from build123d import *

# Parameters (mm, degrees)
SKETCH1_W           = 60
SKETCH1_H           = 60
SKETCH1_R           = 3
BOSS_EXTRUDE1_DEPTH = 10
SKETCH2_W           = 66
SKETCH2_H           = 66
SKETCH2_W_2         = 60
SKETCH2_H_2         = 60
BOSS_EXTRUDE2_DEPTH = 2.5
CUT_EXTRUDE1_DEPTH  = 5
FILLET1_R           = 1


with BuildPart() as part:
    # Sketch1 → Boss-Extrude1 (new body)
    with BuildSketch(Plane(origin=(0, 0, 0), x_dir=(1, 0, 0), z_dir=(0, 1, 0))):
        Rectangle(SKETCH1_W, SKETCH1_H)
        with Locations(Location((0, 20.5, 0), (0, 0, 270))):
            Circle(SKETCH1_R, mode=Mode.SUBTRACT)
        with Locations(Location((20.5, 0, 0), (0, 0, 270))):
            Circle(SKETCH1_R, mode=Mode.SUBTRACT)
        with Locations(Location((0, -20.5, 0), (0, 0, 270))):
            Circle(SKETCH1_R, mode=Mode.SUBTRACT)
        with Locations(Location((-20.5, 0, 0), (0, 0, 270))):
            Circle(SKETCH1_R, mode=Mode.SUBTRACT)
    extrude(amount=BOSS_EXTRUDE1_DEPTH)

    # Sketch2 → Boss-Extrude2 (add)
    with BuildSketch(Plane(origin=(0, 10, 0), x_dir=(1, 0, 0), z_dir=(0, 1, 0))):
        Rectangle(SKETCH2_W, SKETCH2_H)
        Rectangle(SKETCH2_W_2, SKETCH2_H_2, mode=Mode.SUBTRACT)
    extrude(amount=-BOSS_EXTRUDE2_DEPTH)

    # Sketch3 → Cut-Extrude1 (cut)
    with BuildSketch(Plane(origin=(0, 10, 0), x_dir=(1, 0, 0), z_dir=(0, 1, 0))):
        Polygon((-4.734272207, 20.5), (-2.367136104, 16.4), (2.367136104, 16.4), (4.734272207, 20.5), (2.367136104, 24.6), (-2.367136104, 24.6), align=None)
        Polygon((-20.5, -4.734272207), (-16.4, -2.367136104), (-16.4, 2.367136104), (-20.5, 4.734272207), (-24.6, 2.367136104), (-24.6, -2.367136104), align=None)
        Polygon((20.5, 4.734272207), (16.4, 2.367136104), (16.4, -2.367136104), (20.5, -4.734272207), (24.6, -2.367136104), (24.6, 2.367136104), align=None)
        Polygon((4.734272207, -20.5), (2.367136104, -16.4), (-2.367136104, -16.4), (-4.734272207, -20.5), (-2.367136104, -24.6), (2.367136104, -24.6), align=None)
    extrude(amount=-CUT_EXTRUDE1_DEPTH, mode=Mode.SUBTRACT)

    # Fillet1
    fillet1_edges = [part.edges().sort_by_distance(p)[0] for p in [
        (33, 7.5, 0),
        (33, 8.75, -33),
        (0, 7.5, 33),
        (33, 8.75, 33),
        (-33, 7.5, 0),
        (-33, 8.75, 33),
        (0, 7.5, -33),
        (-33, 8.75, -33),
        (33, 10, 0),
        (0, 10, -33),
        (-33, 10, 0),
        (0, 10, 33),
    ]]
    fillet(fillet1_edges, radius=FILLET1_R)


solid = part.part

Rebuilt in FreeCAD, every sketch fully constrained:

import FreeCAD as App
import Part
import Sketcher
Q = App.Units.Quantity


def edges_at(feature, points):
    """Names of the edges that pass closest to the given points."""
    edges = feature.Shape.Edges
    near = lambda p: min(range(len(edges)), key=lambda i: edges[i].distToShape(Part.Vertex(*p))[0])
    return sorted({f"Edge{near(p) + 1}" for p in points})


def add_polygon(sketch, points):
    """Adds a closed chain of lines whose ends are joined by coincident constraints."""
    first, n = sketch.GeometryCount, len(points)
    for a, b in zip(points, points[1:] + points[:1]):
        sketch.addGeometry(Part.LineSegment(App.Vector(*a, 0), App.Vector(*b, 0)), False)
    for i in range(n):
        sketch.addConstraint(Sketcher.Constraint("Coincident", first + i, 2, first + (i + 1) % n, 1))

doc = App.newDocument("Part")
params = doc.addObject("Spreadsheet::Sheet", "Params")
for row, (alias, value) in enumerate([
    ("sketch1_diameter", "6 mm"),
    ("sketch1_width", "60 mm"),
    ("pad1_length", "10 mm"),
    ("sketch2_width", "66 mm"),
    ("sketch2_width2", "60 mm"),
    ("pad2_length", "2.5 mm"),
    ("pocket1_length", "5 mm"),
    ("fillet_radius", "1 mm"),
], start=1):
    params.set(f"A{row}", alias)
    params.set(f"B{row}", "=" + value)
    params.setAlias(f"B{row}", alias)

body = doc.addObject("PartDesign::Body", "Body")

sketch1 = body.newObject("Sketcher::SketchObject", "Sketch")
sketch1.AttachmentSupport = (doc.getObject("XZ_Plane"), [""])
sketch1.MapMode = "FlatFace"
add_polygon(sketch1, [(-30, -30), (-30, 30), (30, 30), (30, -30)])
sketch1.addGeometry(Part.Circle(App.Vector(0, 20.5, 0), App.Vector(0, 0, 1), 3), False)
sketch1.addGeometry(Part.Circle(App.Vector(-20.5, 0, 0), App.Vector(0, 0, 1), 3), False)
sketch1.addGeometry(Part.Circle(App.Vector(20.5, 0, 0), App.Vector(0, 0, 1), 3), False)
sketch1.addGeometry(Part.Circle(App.Vector(0, -20.5, 0), App.Vector(0, 0, 1), 3), False)
sketch1.addConstraint([
    Sketcher.Constraint("Vertical", 0),
    Sketcher.Constraint("Horizontal", 1),
    Sketcher.Constraint("Vertical", 2),
    Sketcher.Constraint("Horizontal", 3),
    Sketcher.Constraint("Equal", 4, 5),
    Sketcher.Constraint("Equal", 5, 6),
    Sketcher.Constraint("Equal", 6, 7),
    Sketcher.Constraint("Symmetric", 5, 3, 6, 3, -1, 1),
    Sketcher.Constraint("Symmetric", 4, 3, 7, 3, -1, 1),
    Sketcher.Constraint("Symmetric", 0, 2, 2, 2, -1, 1),
    Sketcher.Constraint("PointOnObject", 4, 3, -2),
    Sketcher.Constraint("PointOnObject", 5, 3, -1),
    Sketcher.Constraint("Equal", 3, 0),
    Sketcher.Constraint("Diameter", 4, 6.0),
    Sketcher.Constraint("DistanceX", 1, 1, 1, 2, 60.0),
    Sketcher.Constraint("DistanceX", 5, 3, 6, 3, 41.0),
    Sketcher.Constraint("DistanceY", 7, 3, 4, 3, 41.0),
])
sketch1.setExpression("Constraints[17]", "Params.sketch1_diameter")
sketch1.setExpression("Constraints[18]", "Params.sketch1_width")
pad1 = body.newObject("PartDesign::Pad", "Pad")
pad1.Profile = sketch1
pad1.setExpression("Length", "Params.pad1_length")
pad1.Reversed = True

sketch2 = body.newObject("Sketcher::SketchObject", "Sketch001")
sketch2.AttachmentSupport = (doc.getObject("XZ_Plane"), [""])
sketch2.MapMode = "FlatFace"
sketch2.AttachmentOffset = App.Placement(App.Vector(0, 0, -10), App.Rotation())
add_polygon(sketch2, [(-33, -33), (-33, 33), (33, 33), (33, -33)])
add_polygon(sketch2, [(30, 30), (-30, 30), (-30, -30), (30, -30)])
sketch2.addConstraint([
    Sketcher.Constraint("Vertical", 0),
    Sketcher.Constraint("Horizontal", 1),
    Sketcher.Constraint("Vertical", 2),
    Sketcher.Constraint("Horizontal", 3),
    Sketcher.Constraint("Horizontal", 4),
    Sketcher.Constraint("Vertical", 5),
    Sketcher.Constraint("Horizontal", 6),
    Sketcher.Constraint("Vertical", 7),
    Sketcher.Constraint("Symmetric", 0, 2, 2, 2, -1, 1),
    Sketcher.Constraint("Symmetric", 4, 2, 6, 2, -1, 1),
    Sketcher.Constraint("Equal", 3, 0),
    Sketcher.Constraint("Equal", 6, 5),
    Sketcher.Constraint("DistanceX", 1, 1, 1, 2, 66.0),
    Sketcher.Constraint("DistanceX", 4, 2, 4, 1, 60.0),
])
sketch2.setExpression("Constraints[20]", "Params.sketch2_width")
sketch2.setExpression("Constraints[21]", "Params.sketch2_width2")
pad2 = body.newObject("PartDesign::Pad", "Pad001")
pad2.Profile = sketch2
pad2.setExpression("Length", "Params.pad2_length")

sketch3 = body.newObject("Sketcher::SketchObject", "Sketch002")
sketch3.AttachmentSupport = (doc.getObject("XZ_Plane"), [""])
sketch3.MapMode = "FlatFace"
sketch3.AttachmentOffset = App.Placement(App.Vector(0, 0, -10), App.Rotation())
add_polygon(sketch3, [(-4.7, -20.5), (-2.4, -16.4), (2.4, -16.4), (4.7, -20.5), (2.4, -24.6), (-2.4, -24.6)])
add_polygon(sketch3, [(-20.5, 4.7), (-16.4, 2.4), (-16.4, -2.4), (-20.5, -4.7), (-24.6, -2.4), (-24.6, 2.4)])
add_polygon(sketch3, [(20.5, -4.7), (16.4, -2.4), (16.4, 2.4), (20.5, 4.7), (24.6, 2.4), (24.6, -2.4)])
add_polygon(sketch3, [(4.7, 20.5), (2.4, 16.4), (-2.4, 16.4), (-4.7, 20.5), (-2.4, 24.6), (2.4, 24.6)])
sketch3.addConstraint([
    Sketcher.Constraint("Horizontal", 1),
    Sketcher.Constraint("Horizontal", 4),
    Sketcher.Constraint("Vertical", 7),
    Sketcher.Constraint("Vertical", 10),
    Sketcher.Constraint("Vertical", 13),
    Sketcher.Constraint("Vertical", 16),
    Sketcher.Constraint("Horizontal", 19),
    Sketcher.Constraint("Horizontal", 22),
    Sketcher.Constraint("Symmetric", 6, 2, 12, 2, -1, 1),
    Sketcher.Constraint("Symmetric", 8, 2, 14, 2, -1, 1),
    Sketcher.Constraint("Symmetric", 9, 2, 15, 2, -1, 1),
    Sketcher.Constraint("Symmetric", 11, 2, 17, 2, -1, 1),
    Sketcher.Constraint("Symmetric", 0, 2, 18, 2, -1, 1),
    Sketcher.Constraint("Symmetric", 2, 2, 20, 2, -1, 1),
    Sketcher.Constraint("Symmetric", 3, 2, 21, 2, -1, 1),
    Sketcher.Constraint("Symmetric", 5, 2, 23, 2, -1, 1),
    Sketcher.Constraint("Symmetric", 2, 2, 5, 2, -2),
    Sketcher.Constraint("Symmetric", 11, 2, 14, 2, -2),
    Sketcher.Constraint("Parallel", 0, 3),
    Sketcher.Constraint("Parallel", 2, 5),
    Sketcher.Constraint("Perpendicular", 3, 6),
    Sketcher.Constraint("Perpendicular", 5, 8),
    Sketcher.Constraint("Parallel", 6, 9),
    Sketcher.Constraint("Parallel", 8, 11),
    Sketcher.Constraint("Parallel", 11, 14),
    Sketcher.Constraint("Parallel", 14, 17),
    Sketcher.Constraint("Perpendicular", 17, 20),
    Sketcher.Constraint("Parallel", 20, 23),
    Sketcher.Constraint("Horizontal", 7, 2, 9, 2),
    Sketcher.Constraint("Horizontal", 6, 2, 10, 2),
    Sketcher.Constraint("Vertical", 1, 2, 3, 2),
    Sketcher.Constraint("Equal", 22, 7),
    Sketcher.Constraint("Equal", 5, 6),
    Sketcher.Constraint("Angle", 0, Q("60 deg")),
    Sketcher.Constraint("DistanceY", 0, 2, -1, 1, 16.4),
    Sketcher.Constraint("DistanceY", 2, 2, -1, 1, 20.5),
    Sketcher.Constraint("DistanceX", 6, 2, -1, 1, 16.4),
    Sketcher.Constraint("DistanceX", 1, 1, 1, 2, 4.734272),
])
pocket1 = body.newObject("PartDesign::Pocket", "Pocket")
pocket1.Profile = sketch3
pocket1.setExpression("Length", "Params.pocket1_length")
pocket1.Reversed = True
doc.recompute()

fillet = body.newObject("PartDesign::Fillet", "Fillet")
fillet.Base = (pocket1, edges_at(pocket1, [
    (33, 7.5, 0),
    (33, 8.75, -33),
    (0, 7.5, 33),
    (33, 8.75, 33),
    (-33, 7.5, 0),
    (-33, 8.75, 33),
    (0, 7.5, -33),
    (-33, 8.75, -33),
    (33, 10, 0),
    (0, 10, -33),
    (-33, 10, 0),
    (0, 10, 33),
]))
fillet.setExpression("Radius", "Params.fillet_radius")

doc.recompute()
